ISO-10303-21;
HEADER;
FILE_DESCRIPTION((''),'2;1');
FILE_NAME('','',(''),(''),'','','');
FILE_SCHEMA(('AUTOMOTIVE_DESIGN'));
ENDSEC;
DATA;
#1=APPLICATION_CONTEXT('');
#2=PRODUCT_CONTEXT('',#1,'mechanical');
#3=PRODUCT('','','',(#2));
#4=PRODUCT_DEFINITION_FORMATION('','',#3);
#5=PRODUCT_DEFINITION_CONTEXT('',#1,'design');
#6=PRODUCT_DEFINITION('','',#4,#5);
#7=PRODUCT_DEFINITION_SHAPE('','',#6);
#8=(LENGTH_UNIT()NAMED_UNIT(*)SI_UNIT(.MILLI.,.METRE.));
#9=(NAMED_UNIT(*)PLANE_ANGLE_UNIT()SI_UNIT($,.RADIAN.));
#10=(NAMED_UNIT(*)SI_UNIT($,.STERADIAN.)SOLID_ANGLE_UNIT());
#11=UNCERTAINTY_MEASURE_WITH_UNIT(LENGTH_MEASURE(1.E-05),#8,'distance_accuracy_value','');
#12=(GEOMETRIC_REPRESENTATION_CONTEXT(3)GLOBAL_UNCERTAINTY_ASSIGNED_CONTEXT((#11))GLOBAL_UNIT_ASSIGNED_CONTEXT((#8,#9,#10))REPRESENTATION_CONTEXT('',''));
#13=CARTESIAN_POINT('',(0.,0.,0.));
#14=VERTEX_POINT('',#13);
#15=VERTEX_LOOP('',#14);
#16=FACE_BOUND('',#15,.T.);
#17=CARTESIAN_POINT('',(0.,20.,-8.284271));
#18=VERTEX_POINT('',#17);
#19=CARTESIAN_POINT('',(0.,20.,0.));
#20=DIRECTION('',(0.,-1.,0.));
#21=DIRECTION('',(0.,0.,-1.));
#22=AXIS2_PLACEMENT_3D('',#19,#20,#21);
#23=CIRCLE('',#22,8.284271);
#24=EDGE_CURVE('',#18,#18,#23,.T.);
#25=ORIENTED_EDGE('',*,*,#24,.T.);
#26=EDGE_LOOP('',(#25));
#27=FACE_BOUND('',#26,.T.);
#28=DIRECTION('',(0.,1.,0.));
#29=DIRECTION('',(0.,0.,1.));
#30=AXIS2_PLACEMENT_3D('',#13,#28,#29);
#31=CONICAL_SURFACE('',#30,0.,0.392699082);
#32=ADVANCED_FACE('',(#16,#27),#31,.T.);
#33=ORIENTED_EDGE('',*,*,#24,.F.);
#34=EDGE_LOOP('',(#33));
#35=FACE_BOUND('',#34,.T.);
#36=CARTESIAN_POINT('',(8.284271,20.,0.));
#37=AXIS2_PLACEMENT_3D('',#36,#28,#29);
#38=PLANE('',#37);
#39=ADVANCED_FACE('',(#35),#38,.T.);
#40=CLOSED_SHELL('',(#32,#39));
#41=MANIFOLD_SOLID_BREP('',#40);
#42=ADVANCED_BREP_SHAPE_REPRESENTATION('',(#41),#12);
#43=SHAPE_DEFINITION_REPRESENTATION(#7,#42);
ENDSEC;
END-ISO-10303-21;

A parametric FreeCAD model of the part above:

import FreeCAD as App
import Part
import Sketcher
from FreeCAD import Vector
Q = App.Units.Quantity

doc = App.newDocument("Part")
body = doc.addObject("PartDesign::Body", "Body")

sketch1 = body.newObject("Sketcher::SketchObject", "Sketch")
sketch1.AttachmentSupport = (doc.getObject("XY_Plane"), [""])
sketch1.MapMode = "FlatFace"
sketch1.addGeometry([
    Part.LineSegment(Vector(0, 0, 0), Vector(8, 20, 0)),
    Part.LineSegment(Vector(8, 20, 0), Vector(0, 20, 0)),
    Part.LineSegment(Vector(0, 20, 0), Vector(0, 0, 0)),
], False)
sketch1.addConstraint([
    Sketcher.Constraint("Coincident", 0, 2, 1, 1),
    Sketcher.Constraint("Coincident", 1, 2, 2, 1),
    Sketcher.Constraint("Coincident", 2, 2, 0, 1),
    Sketcher.Constraint("Horizontal", 1),
    Sketcher.Constraint("Vertical", 2),
    Sketcher.Constraint("Coincident", 2, 2, -1, 1),
    Sketcher.Constraint("DistanceY", 2, 2, 2, 1, 20.0),
    Sketcher.Constraint("Angle", 0, Q("67.5 deg")),
])
revolution = body.newObject("PartDesign::Revolution", "Revolution")
revolution.Profile = sketch1
revolution.ReferenceAxis = (sketch1, ["V_Axis"])
revolution.Angle = 360

doc.recompute()
